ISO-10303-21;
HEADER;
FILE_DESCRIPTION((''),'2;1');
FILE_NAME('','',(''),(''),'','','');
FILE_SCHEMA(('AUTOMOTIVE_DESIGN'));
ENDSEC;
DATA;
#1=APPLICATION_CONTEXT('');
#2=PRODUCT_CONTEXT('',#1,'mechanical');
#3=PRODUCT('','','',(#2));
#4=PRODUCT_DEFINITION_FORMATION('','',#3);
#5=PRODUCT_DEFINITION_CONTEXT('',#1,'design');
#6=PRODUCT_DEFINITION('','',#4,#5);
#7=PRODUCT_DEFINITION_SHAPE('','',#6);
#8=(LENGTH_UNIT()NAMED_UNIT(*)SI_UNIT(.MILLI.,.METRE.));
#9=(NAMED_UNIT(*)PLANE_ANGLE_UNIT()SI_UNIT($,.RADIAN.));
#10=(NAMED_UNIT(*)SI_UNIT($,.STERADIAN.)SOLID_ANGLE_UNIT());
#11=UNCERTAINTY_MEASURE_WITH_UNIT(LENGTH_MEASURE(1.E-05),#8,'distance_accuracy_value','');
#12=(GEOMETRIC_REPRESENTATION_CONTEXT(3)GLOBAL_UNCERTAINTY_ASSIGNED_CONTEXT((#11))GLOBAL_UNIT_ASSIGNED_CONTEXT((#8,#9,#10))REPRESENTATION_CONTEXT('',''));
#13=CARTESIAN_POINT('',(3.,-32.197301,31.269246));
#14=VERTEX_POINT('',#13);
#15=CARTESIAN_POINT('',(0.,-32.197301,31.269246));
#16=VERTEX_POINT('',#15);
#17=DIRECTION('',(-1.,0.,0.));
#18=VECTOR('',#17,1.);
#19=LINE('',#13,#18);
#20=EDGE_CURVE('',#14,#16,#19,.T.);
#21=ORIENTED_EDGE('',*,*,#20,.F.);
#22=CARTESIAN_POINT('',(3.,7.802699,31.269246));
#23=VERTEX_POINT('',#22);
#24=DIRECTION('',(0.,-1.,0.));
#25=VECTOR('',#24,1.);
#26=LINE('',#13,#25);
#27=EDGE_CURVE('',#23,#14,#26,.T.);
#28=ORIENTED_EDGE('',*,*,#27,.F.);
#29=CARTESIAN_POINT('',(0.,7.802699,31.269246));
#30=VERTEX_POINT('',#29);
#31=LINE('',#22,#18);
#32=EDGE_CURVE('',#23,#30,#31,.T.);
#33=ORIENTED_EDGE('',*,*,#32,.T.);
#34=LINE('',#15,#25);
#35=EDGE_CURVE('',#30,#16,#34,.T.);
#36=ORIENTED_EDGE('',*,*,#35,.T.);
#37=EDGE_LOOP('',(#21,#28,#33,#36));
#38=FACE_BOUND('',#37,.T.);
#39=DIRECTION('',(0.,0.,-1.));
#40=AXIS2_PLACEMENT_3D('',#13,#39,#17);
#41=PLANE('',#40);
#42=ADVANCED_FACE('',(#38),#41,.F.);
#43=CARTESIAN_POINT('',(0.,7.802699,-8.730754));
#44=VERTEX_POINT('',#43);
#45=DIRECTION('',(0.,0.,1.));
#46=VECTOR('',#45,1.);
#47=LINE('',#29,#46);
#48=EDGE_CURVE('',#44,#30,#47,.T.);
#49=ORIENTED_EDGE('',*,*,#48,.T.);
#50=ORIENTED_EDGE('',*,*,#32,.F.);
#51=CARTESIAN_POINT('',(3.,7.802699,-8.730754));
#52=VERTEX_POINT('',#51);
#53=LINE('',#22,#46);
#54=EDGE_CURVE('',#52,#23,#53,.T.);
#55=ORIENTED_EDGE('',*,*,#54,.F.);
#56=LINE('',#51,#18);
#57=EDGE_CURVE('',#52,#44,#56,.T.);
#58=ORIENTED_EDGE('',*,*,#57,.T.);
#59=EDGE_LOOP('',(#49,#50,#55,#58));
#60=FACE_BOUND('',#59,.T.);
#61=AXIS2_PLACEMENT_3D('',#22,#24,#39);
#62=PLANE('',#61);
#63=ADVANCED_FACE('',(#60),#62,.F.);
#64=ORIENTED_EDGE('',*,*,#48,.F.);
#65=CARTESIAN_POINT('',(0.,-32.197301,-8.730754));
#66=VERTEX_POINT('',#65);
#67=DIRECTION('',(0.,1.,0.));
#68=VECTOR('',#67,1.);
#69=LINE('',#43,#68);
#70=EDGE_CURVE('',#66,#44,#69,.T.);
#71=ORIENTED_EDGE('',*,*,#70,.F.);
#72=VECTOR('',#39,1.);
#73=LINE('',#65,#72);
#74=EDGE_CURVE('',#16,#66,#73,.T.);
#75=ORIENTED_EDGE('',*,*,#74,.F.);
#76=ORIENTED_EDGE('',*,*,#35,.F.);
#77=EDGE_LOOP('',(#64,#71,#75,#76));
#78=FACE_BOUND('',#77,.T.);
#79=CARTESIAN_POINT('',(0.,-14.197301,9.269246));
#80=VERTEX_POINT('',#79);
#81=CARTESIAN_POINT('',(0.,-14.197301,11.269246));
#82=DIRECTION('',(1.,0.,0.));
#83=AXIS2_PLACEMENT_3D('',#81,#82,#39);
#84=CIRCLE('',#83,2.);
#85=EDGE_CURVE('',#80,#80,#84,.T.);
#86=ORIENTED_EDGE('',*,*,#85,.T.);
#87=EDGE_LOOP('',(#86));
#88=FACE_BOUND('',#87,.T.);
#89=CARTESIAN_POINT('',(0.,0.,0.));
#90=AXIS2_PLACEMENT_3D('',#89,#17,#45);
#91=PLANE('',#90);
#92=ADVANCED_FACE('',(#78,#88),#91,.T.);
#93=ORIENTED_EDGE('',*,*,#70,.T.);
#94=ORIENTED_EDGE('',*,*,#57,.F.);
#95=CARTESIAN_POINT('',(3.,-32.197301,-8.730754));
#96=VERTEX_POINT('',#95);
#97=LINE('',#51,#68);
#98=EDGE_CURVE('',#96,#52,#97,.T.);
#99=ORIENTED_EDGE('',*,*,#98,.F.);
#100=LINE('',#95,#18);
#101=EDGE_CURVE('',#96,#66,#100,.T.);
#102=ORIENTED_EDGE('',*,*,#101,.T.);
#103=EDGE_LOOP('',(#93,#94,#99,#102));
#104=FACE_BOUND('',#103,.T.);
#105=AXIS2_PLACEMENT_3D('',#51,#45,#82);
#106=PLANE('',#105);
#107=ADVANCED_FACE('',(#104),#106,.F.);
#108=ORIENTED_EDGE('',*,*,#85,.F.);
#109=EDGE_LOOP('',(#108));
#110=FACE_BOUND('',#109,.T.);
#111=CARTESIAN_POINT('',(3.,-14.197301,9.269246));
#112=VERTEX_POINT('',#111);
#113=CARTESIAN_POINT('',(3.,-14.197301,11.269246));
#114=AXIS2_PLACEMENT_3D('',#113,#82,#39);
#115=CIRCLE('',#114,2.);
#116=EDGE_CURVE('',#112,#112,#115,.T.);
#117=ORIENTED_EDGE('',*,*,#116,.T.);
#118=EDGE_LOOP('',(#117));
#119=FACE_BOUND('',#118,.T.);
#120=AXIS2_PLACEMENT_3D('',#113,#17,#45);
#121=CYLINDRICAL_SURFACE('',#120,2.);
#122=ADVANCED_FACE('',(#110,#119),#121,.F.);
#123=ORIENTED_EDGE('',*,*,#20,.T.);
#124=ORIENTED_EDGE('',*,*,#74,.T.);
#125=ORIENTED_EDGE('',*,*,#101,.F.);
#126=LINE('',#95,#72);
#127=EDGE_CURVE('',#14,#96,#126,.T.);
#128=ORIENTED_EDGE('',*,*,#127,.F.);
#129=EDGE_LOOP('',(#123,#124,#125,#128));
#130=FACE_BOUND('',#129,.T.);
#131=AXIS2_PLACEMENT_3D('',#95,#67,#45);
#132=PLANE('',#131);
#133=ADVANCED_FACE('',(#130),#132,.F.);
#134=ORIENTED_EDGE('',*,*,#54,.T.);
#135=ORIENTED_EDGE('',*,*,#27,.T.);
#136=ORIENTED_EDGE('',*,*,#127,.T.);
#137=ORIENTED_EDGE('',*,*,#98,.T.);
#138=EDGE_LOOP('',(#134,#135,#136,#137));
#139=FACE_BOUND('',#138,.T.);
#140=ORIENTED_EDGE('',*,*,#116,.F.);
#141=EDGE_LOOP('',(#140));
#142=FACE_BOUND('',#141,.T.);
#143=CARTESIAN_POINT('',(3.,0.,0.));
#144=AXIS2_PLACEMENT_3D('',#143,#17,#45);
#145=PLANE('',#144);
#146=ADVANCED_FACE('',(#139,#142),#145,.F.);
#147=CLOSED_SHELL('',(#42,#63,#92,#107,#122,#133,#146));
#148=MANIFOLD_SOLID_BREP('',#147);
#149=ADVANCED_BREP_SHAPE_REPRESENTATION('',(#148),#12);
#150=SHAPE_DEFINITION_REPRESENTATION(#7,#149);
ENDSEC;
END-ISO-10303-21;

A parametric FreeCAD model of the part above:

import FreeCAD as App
import Part
import Sketcher


def add_polygon(sketch, points):
    """Adds a closed chain of lines whose ends are joined by coincident constraints."""
    first, n = sketch.GeometryCount, len(points)
    for a, b in zip(points, points[1:] + points[:1]):
        sketch.addGeometry(Part.LineSegment(App.Vector(*a, 0), App.Vector(*b, 0)), False)
    for i in range(n):
        sketch.addConstraint(Sketcher.Constraint("Coincident", first + i, 2, first + (i + 1) % n, 1))

doc = App.newDocument("Part")
body = doc.addObject("PartDesign::Body", "Body")

sketch1 = doc.addObject("Sketcher::SketchObject", "Sketch")
body.addObject(sketch1)
sketch1.AttachmentSupport = (doc.YZ_Plane, [""])
sketch1.MapMode = "FlatFace"
add_polygon(sketch1, [(7.8, 31.3), (-32.2, 31.3), (-32.2, -8.7), (7.8, -8.7)])
sketch1.addGeometry(Part.Circle(App.Vector(-14.2, 11.3, 0), App.Vector(0, 0, 1), 2), False)
sketch1.addConstraint([
    Sketcher.Constraint("Horizontal", 0),
    Sketcher.Constraint("Vertical", 1),
    Sketcher.Constraint("Horizontal", 2),
    Sketcher.Constraint("Vertical", 3),
    Sketcher.Constraint("Equal", 2, 1),
    Sketcher.Constraint("Diameter", 4, 4.0),
    Sketcher.Constraint("DistanceX", 0, 2, 0, 1, 40.0),
    Sketcher.Constraint("DistanceX", 0, 2, 4, 3, 18.0),
    Sketcher.Constraint("DistanceY", 4, 3, 0, 2, 20.0),
    Sketcher.Constraint("DistanceX", 4, 3, -1, 1, 14.197301),
    Sketcher.Constraint("DistanceY", -1, 1, 4, 3, 11.269246),
])
pad1 = doc.addObject("PartDesign::Pad", "Pad")
body.addObject(pad1)
pad1.Profile = sketch1
pad1.Length = 3

doc.recompute()
